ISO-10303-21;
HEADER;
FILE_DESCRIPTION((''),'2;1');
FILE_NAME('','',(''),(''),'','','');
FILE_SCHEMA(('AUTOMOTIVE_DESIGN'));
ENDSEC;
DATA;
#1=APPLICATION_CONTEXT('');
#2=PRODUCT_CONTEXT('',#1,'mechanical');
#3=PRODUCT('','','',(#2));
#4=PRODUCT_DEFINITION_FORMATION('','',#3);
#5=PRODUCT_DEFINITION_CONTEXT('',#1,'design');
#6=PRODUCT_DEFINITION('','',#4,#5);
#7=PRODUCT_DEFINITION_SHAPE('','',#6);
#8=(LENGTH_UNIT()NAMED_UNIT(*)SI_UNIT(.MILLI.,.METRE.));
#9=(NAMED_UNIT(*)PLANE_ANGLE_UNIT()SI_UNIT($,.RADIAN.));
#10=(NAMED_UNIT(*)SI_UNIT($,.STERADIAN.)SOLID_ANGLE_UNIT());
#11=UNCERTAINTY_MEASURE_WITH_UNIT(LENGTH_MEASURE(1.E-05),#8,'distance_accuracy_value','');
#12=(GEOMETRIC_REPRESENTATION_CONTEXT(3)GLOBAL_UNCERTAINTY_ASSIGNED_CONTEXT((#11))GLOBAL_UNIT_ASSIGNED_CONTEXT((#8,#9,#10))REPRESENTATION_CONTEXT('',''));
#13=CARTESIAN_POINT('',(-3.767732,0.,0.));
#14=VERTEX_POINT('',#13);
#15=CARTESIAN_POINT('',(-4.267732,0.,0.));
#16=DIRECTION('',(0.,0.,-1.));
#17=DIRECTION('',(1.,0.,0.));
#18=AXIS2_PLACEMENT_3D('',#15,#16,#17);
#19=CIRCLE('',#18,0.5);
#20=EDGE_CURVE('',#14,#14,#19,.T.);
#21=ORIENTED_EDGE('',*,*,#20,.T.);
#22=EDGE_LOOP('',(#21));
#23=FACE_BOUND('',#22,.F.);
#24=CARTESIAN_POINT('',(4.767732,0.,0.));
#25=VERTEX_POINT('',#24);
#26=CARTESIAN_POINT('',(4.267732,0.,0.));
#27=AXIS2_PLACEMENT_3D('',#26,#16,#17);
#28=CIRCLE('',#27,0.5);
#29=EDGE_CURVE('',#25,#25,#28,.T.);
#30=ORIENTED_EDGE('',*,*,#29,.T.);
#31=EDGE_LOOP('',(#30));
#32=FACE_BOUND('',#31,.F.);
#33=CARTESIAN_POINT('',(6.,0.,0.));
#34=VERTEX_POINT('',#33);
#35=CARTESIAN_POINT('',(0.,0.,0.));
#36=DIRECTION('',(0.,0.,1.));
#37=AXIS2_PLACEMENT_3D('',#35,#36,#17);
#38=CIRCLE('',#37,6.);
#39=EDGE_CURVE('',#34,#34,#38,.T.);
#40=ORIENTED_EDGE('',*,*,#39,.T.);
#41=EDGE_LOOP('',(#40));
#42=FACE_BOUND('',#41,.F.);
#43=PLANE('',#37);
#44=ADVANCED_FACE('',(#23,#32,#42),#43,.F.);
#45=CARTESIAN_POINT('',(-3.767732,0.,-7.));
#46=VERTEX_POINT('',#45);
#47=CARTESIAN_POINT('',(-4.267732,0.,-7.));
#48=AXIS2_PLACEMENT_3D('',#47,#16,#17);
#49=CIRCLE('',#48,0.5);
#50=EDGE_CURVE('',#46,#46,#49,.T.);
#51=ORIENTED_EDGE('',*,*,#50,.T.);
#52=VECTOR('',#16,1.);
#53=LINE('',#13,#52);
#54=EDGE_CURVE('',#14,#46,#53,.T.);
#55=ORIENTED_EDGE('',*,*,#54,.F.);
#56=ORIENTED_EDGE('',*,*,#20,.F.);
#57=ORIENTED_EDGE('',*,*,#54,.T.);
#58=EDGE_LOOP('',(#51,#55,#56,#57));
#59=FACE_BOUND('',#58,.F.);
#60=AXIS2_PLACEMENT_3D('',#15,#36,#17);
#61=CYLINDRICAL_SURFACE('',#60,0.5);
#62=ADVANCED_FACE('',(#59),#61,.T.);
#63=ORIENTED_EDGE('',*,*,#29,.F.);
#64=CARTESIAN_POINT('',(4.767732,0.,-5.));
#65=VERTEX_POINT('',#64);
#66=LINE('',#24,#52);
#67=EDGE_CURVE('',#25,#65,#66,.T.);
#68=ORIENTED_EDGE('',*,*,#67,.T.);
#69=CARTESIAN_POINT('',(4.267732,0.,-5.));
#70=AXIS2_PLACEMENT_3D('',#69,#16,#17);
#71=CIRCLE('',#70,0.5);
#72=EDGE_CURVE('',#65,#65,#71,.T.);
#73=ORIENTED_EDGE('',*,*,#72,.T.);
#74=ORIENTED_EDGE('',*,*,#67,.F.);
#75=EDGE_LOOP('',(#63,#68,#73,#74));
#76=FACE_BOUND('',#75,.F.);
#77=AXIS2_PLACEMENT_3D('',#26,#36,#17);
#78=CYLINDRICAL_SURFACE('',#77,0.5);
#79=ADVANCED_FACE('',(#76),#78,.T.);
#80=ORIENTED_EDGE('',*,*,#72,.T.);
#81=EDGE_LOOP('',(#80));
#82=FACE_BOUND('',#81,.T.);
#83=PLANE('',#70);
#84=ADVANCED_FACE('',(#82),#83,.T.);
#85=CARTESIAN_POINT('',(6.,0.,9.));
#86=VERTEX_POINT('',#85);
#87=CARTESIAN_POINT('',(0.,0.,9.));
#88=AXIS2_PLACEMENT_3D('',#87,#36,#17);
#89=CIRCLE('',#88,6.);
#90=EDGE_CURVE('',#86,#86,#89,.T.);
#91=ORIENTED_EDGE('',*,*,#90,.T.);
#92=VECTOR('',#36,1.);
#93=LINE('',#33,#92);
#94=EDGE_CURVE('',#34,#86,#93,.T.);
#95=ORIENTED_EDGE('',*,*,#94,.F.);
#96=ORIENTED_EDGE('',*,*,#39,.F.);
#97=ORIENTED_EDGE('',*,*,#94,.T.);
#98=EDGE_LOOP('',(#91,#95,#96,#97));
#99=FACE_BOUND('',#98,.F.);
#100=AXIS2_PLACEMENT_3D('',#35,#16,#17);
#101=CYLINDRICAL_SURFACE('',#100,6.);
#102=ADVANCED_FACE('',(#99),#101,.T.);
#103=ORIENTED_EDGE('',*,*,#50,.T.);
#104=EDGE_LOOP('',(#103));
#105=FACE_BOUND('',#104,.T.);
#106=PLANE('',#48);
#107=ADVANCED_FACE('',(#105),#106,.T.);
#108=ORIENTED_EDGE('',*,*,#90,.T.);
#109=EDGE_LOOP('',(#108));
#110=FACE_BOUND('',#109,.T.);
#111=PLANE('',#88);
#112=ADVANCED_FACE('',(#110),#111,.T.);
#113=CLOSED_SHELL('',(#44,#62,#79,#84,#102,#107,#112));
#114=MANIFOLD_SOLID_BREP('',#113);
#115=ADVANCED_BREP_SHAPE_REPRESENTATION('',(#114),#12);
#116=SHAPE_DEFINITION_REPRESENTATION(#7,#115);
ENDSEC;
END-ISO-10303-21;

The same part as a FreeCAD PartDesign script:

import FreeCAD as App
import Part
import Sketcher

V = App.Vector

doc = App.newDocument("Part")
body = doc.addObject("PartDesign::Body", "Body")

sketch1 = body.newObject("Sketcher::SketchObject", "Sketch")
sketch1.AttachmentSupport = (doc.getObject("XY_Plane"), [""])
sketch1.MapMode = "FlatFace"
sketch1.addGeometry(Part.Circle(V(0, 0, 0), V(0, 0, 1), 6), False)
sketch1.addConstraint([
    Sketcher.Constraint("Coincident", 0, 3, -1, 1),
    Sketcher.Constraint("Diameter", 0, 12.0),
])
pad1 = body.newObject("PartDesign::Pad", "Pad")
pad1.Profile = sketch1
pad1.Length = 9

sketch2 = body.newObject("Sketcher::SketchObject", "Sketch001")
sketch2.AttachmentSupport = (doc.getObject("XY_Plane"), [""])
sketch2.MapMode = "FlatFace"
sketch2.addGeometry(Part.Circle(V(-4.3, 0, 0), V(0, 0, 1), 0.5), False)
sketch2.addConstraint([
    Sketcher.Constraint("PointOnObject", 0, 3, -1),
    Sketcher.Constraint("Diameter", 0, 1.0),
    Sketcher.Constraint("DistanceX", 0, 3, -1, 1, 4.267732),
])
pad2 = body.newObject("PartDesign::Pad", "Pad001")
pad2.Profile = sketch2
pad2.Length = 7
pad2.Reversed = True

sketch3 = body.newObject("Sketcher::SketchObject", "Sketch002")
sketch3.AttachmentSupport = (doc.getObject("XY_Plane"), [""])
sketch3.MapMode = "FlatFace"
sketch3.addGeometry(Part.Circle(V(4.3, 0, 0), V(0, 0, 1), 0.5), False)
sketch3.addConstraint([
    Sketcher.Constraint("PointOnObject", 0, 3, -1),
    Sketcher.Constraint("Diameter", 0, 1.0),
    Sketcher.Constraint("DistanceX", -1, 1, 0, 3, 4.267732),
])
pad3 = body.newObject("PartDesign::Pad", "Pad002")
pad3.Profile = sketch3
pad3.Length = 5
pad3.Reversed = True

doc.recompute()
